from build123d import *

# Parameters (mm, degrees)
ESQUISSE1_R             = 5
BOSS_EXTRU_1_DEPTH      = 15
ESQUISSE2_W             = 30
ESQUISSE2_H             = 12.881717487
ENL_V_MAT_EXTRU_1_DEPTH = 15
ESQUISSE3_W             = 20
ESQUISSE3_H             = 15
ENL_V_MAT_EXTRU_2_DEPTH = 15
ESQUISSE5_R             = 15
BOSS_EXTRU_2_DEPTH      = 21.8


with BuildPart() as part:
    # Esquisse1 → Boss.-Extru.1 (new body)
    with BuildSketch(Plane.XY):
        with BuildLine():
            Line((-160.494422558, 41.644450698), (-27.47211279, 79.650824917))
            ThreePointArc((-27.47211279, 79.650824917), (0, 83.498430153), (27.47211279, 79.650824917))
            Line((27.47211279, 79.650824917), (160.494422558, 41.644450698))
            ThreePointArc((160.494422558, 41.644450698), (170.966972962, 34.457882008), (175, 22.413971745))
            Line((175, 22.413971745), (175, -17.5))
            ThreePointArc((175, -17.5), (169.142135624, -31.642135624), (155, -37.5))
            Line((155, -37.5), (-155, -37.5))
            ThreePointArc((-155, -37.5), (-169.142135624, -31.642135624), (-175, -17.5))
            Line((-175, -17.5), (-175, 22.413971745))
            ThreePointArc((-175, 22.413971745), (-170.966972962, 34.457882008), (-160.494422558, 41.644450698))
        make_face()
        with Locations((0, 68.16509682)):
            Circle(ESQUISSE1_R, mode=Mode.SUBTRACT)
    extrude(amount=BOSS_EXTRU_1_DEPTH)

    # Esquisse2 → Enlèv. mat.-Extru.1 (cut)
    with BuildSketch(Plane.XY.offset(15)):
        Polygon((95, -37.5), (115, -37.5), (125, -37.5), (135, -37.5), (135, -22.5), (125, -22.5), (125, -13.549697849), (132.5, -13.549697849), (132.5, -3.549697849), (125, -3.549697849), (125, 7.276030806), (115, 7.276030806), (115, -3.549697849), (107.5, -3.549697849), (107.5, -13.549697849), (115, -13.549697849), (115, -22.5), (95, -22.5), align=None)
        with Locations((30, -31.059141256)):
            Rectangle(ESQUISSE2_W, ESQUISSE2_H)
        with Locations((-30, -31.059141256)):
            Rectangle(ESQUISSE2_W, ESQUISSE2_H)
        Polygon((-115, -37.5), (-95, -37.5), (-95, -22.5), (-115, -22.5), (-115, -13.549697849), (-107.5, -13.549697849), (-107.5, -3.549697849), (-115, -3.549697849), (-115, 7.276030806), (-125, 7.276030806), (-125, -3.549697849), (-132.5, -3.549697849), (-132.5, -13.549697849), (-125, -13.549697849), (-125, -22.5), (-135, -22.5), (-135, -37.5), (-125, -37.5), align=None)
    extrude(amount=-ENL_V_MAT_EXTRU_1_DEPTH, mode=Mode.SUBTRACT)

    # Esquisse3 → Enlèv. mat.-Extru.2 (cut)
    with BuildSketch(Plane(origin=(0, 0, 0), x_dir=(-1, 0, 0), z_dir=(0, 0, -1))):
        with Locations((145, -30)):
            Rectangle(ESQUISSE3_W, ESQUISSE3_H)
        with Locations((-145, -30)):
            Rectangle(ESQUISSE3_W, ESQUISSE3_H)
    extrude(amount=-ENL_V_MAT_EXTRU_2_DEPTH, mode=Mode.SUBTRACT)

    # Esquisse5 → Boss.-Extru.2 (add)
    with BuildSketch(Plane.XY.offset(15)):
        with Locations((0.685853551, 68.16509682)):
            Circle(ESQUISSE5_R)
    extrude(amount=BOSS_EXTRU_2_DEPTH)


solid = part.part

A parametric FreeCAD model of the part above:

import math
import FreeCAD as App
import Part
import Sketcher
from FreeCAD import Vector
Q = App.Units.Quantity

doc = App.newDocument("Part")
body = doc.addObject("PartDesign::Body", "Body")

# Sketch on XY plane
sketch1 = body.newObject("Sketcher::SketchObject", "Sketch")
sketch1.AttachmentSupport = (doc.getObject("XY_Plane"), [""])
sketch1.MapMode = "FlatFace"
sketch1.addGeometry([
    Part.LineSegment(Vector(-27, 80, 0), Vector(-160, 42, 0)),  # 0
    Part.ArcOfCircle(Part.Circle(Vector(-155, 22, 0), Vector(0, 0, 1), 20), math.radians(106), math.radians(180)),  # 1
    Part.LineSegment(Vector(-175, 22, 0), Vector(-175, -18, 0)),  # 2
    Part.ArcOfCircle(Part.Circle(Vector(-155, -18, 0), Vector(0, 0, 1), 20), math.radians(180), math.radians(270)),  # 3
    Part.LineSegment(Vector(-155, -38, 0), Vector(155, -38, 0)),  # 4
    Part.ArcOfCircle(Part.Circle(Vector(155, -18, 0), Vector(0, 0, 1), 20), math.radians(-90), math.radians(0)),  # 5
    Part.LineSegment(Vector(175, -18, 0), Vector(175, 22, 0)),  # 6
    Part.ArcOfCircle(Part.Circle(Vector(155, 22, 0), Vector(0, 0, 1), 20), math.radians(0), math.radians(74)),  # 7
    Part.LineSegment(Vector(160, 42, 0), Vector(27, 80, 0)),  # 8
    Part.ArcOfCircle(Part.Circle(Vector(0, -17, 0), Vector(0, 0, 1), 100), math.radians(74), math.radians(106)),  # 9
    Part.Circle(Vector(0, 68, 0), Vector(0, 0, 1), 5),  # 10
], False)
sketch1.addConstraint([
    Sketcher.Constraint("Tangent", 0, 2, 1, 1),
    Sketcher.Constraint("Tangent", 1, 2, 2, 1),
    Sketcher.Constraint("Tangent", 2, 2, 3, 1),
    Sketcher.Constraint("Tangent", 3, 2, 4, 1),
    Sketcher.Constraint("Tangent", 4, 2, 5, 1),
    Sketcher.Constraint("Tangent", 5, 2, 6, 1),
    Sketcher.Constraint("Tangent", 6, 2, 7, 1),
    Sketcher.Constraint("Tangent", 7, 2, 8, 1),
    Sketcher.Constraint("Tangent", 8, 2, 9, 1),
    Sketcher.Constraint("Tangent", 9, 2, 0, 1),
    Sketcher.Constraint("Vertical", 2),
    Sketcher.Constraint("Horizontal", 4),
    Sketcher.Constraint("Vertical", 6),
    Sketcher.Constraint("Equal", 1, 3),
    Sketcher.Constraint("Equal", 3, 5),
    Sketcher.Constraint("Equal", 5, 7),
    Sketcher.Constraint("Symmetric", 1, 3, 7, 3, -2),
    Sketcher.Constraint("PointOnObject", 9, 3, -2),
    Sketcher.Constraint("PointOnObject", 10, 3, -2),
    Sketcher.Constraint("Diameter", 10, Q("10 mm")),
    Sketcher.Constraint("Radius", 1, Q("20 mm")),
    Sketcher.Constraint("Radius", 9, Q("100 mm")),
    Sketcher.Constraint("DistanceX", 4, 1, 4, 2, Q("310 mm")),
    Sketcher.Constraint("DistanceY", 3, 3, -1, 1, Q("17.5 mm")),
    Sketcher.Constraint("DistanceY", 2, 2, 2, 1, Q("39.913972 mm")),
    Sketcher.Constraint("Distance", 0, Q("138.34529 mm")),
    Sketcher.Constraint("DistanceY", 10, 3, 8, 2, Q("11.485728 mm")),
])
pad1 = body.newObject("PartDesign::Pad", "Pad")
pad1.Profile = sketch1
pad1.Length = 15

# Sketch on XY plane
sketch2 = body.newObject("Sketcher::SketchObject", "Sketch001")
sketch2.AttachmentSupport = (doc.getObject("XY_Plane"), [""])
sketch2.MapMode = "FlatFace"
sketch2.AttachmentOffset = App.Placement(Vector(0, 0, 15), App.Rotation())
sketch2.addGeometry([
    Part.LineSegment(Vector(95, -38, 0), Vector(135, -38, 0)),  # 0
    Part.LineSegment(Vector(135, -38, 0), Vector(135, -22, 0)),  # 1
    Part.LineSegment(Vector(135, -22, 0), Vector(125, -22, 0)),  # 2
    Part.LineSegment(Vector(125, -22, 0), Vector(125, -14, 0)),  # 3
    Part.LineSegment(Vector(125, -14, 0), Vector(132, -14, 0)),  # 4
    Part.LineSegment(Vector(132, -14, 0), Vector(132, -4, 0)),  # 5
    Part.LineSegment(Vector(132, -4, 0), Vector(125, -4, 0)),  # 6
    Part.LineSegment(Vector(125, -4, 0), Vector(125, 7, 0)),  # 7
    Part.LineSegment(Vector(125, 7, 0), Vector(115, 7, 0)),  # 8
    Part.LineSegment(Vector(115, 7, 0), Vector(115, -4, 0)),  # 9
    Part.LineSegment(Vector(115, -4, 0), Vector(108, -4, 0)),  # 10
    Part.LineSegment(Vector(108, -4, 0), Vector(108, -14, 0)),  # 11
    Part.LineSegment(Vector(108, -14, 0), Vector(115, -14, 0)),  # 12
    Part.LineSegment(Vector(115, -14, 0), Vector(115, -22, 0)),  # 13
    Part.LineSegment(Vector(115, -22, 0), Vector(95, -22, 0)),  # 14
    Part.LineSegment(Vector(95, -22, 0), Vector(95, -38, 0)),  # 15
    Part.LineSegment(Vector(15, -25, 0), Vector(15, -37, 0)),  # 16
    Part.LineSegment(Vector(15, -37, 0), Vector(45, -37, 0)),  # 17
    Part.LineSegment(Vector(45, -37, 0), Vector(45, -25, 0)),  # 18
    Part.LineSegment(Vector(45, -25, 0), Vector(15, -25, 0)),  # 19
    Part.LineSegment(Vector(-45, -25, 0), Vector(-45, -37, 0)),  # 20
    Part.LineSegment(Vector(-45, -37, 0), Vector(-15, -37, 0)),  # 21
    Part.LineSegment(Vector(-15, -37, 0), Vector(-15, -25, 0)),  # 22
    Part.LineSegment(Vector(-15, -25, 0), Vector(-45, -25, 0)),  # 23
    Part.LineSegment(Vector(-95, -38, 0), Vector(-95, -22, 0)),  # 24
    Part.LineSegment(Vector(-95, -22, 0), Vector(-115, -22, 0)),  # 25
    Part.LineSegment(Vector(-115, -22, 0), Vector(-115, -14, 0)),  # 26
    Part.LineSegment(Vector(-115, -14, 0), Vector(-108, -14, 0)),  # 27
    Part.LineSegment(Vector(-108, -14, 0), Vector(-108, -4, 0)),  # 28
    Part.LineSegment(Vector(-108, -4, 0), Vector(-115, -4, 0)),  # 29
    Part.LineSegment(Vector(-115, -4, 0), Vector(-115, 7, 0)),  # 30
    Part.LineSegment(Vector(-115, 7, 0), Vector(-125, 7, 0)),  # 31
    Part.LineSegment(Vector(-125, 7, 0), Vector(-125, -4, 0)),  # 32
    Part.LineSegment(Vector(-125, -4, 0), Vector(-132, -4, 0)),  # 33
    Part.LineSegment(Vector(-132, -4, 0), Vector(-132, -14, 0)),  # 34
    Part.LineSegment(Vector(-132, -14, 0), Vector(-125, -14, 0)),  # 35
    Part.LineSegment(Vector(-125, -14, 0), Vector(-125, -22, 0)),  # 36
    Part.LineSegment(Vector(-125, -22, 0), Vector(-135, -22, 0)),  # 37
    Part.LineSegment(Vector(-135, -22, 0), Vector(-135, -38, 0)),  # 38
    Part.LineSegment(Vector(-135, -38, 0), Vector(-95, -38, 0)),  # 39
], False)
sketch2.addConstraint([
    Sketcher.Constraint("Coincident", 0, 2, 1, 1),
    Sketcher.Constraint("Coincident", 1, 2, 2, 1),
    Sketcher.Constraint("Coincident", 2, 2, 3, 1),
    Sketcher.Constraint("Coincident", 3, 2, 4, 1),
    Sketcher.Constraint("Coincident", 4, 2, 5, 1),
    Sketcher.Constraint("Coincident", 5, 2, 6, 1),
    Sketcher.Constraint("Coincident", 6, 2, 7, 1),
    Sketcher.Constraint("Coincident", 7, 2, 8, 1),
    Sketcher.Constraint("Coincident", 8, 2, 9, 1),
    Sketcher.Constraint("Coincident", 9, 2, 10, 1),
    Sketcher.Constraint("Coincident", 10, 2, 11, 1),
    Sketcher.Constraint("Coincident", 11, 2, 12, 1),
    Sketcher.Constraint("Coincident", 12, 2, 13, 1),
    Sketcher.Constraint("Coincident", 13, 2, 14, 1),
    Sketcher.Constraint("Coincident", 14, 2, 15, 1),
    Sketcher.Constraint("Coincident", 15, 2, 0, 1),
    Sketcher.Constraint("Coincident", 16, 2, 17, 1),
    Sketcher.Constraint("Coincident", 17, 2, 18, 1),
    Sketcher.Constraint("Coincident", 18, 2, 19, 1),
    Sketcher.Constraint("Coincident", 19, 2, 16, 1),
    Sketcher.Constraint("Coincident", 20, 2, 21, 1),
    Sketcher.Constraint("Coincident", 21, 2, 22, 1),
    Sketcher.Constraint("Coincident", 22, 2, 23, 1),
    Sketcher.Constraint("Coincident", 23, 2, 20, 1),
    Sketcher.Constraint("Coincident", 24, 2, 25, 1),
    Sketcher.Constraint("Coincident", 25, 2, 26, 1),
    Sketcher.Constraint("Coincident", 26, 2, 27, 1),
    Sketcher.Constraint("Coincident", 27, 2, 28, 1),
    Sketcher.Constraint("Coincident", 28, 2, 29, 1),
    Sketcher.Constraint("Coincident", 29, 2, 30, 1),
    Sketcher.Constraint("Coincident", 30, 2, 31, 1),
    Sketcher.Constraint("Coincident", 31, 2, 32, 1),
    Sketcher.Constraint("Coincident", 32, 2, 33, 1),
    Sketcher.Constraint("Coincident", 33, 2, 34, 1),
    Sketcher.Constraint("Coincident", 34, 2, 35, 1),
    Sketcher.Constraint("Coincident", 35, 2, 36, 1),
    Sketcher.Constraint("Coincident", 36, 2, 37, 1),
    Sketcher.Constraint("Coincident", 37, 2, 38, 1),
    Sketcher.Constraint("Coincident", 38, 2, 39, 1),
    Sketcher.Constraint("Coincident", 39, 2, 24, 1),
    Sketcher.Constraint("Horizontal", 0),
    Sketcher.Constraint("Vertical", 1),
    Sketcher.Constraint("Horizontal", 2),
    Sketcher.Constraint("Vertical", 3),
    Sketcher.Constraint("Horizontal", 4),
    Sketcher.Constraint("Vertical", 5),
    Sketcher.Constraint("Horizontal", 6),
    Sketcher.Constraint("Vertical", 7),
    Sketcher.Constraint("Horizontal", 8),
    Sketcher.Constraint("Vertical", 9),
    Sketcher.Constraint("Horizontal", 10),
    Sketcher.Constraint("Vertical", 11),
    Sketcher.Constraint("Horizontal", 12),
    Sketcher.Constraint("Vertical", 13),
    Sketcher.Constraint("Horizontal", 14),
    Sketcher.Constraint("Vertical", 15),
    Sketcher.Constraint("Vertical", 16),
    Sketcher.Constraint("Horizontal", 17),
    Sketcher.Constraint("Vertical", 18),
    Sketcher.Constraint("Horizontal", 19),
    Sketcher.Constraint("Vertical", 20),
    Sketcher.Constraint("Horizontal", 21),
    Sketcher.Constraint("Vertical", 22),
    Sketcher.Constraint("Horizontal", 23),
    Sketcher.Constraint("Vertical", 24),
    Sketcher.Constraint("Horizontal", 25),
    Sketcher.Constraint("Vertical", 26),
    Sketcher.Constraint("Horizontal", 27),
    Sketcher.Constraint("Vertical", 28),
    Sketcher.Constraint("Horizontal", 29),
    Sketcher.Constraint("Vertical", 30),
    Sketcher.Constraint("Horizontal", 31),
    Sketcher.Constraint("Vertical", 32),
    Sketcher.Constraint("Horizontal", 33),
    Sketcher.Constraint("Vertical", 34),
    Sketcher.Constraint("Horizontal", 35),
    Sketcher.Constraint("Vertical", 36),
    Sketcher.Constraint("Horizontal", 37),
    Sketcher.Constraint("Vertical", 38),
    Sketcher.Constraint("Horizontal", 39),
    Sketcher.Constraint("Symmetric", 17, 2, 20, 2, -2),
    Sketcher.Constraint("Symmetric", 19, 2, 22, 2, -2),
    Sketcher.Constraint("Symmetric", 14, 2, 24, 2, -2),
    Sketcher.Constraint("Symmetric", 12, 2, 26, 2, -2),
    Sketcher.Constraint("Symmetric", 10, 2, 28, 2, -2),
    Sketcher.Constraint("Symmetric", 8, 2, 30, 2, -2),
    Sketcher.Constraint("Symmetric", 6, 2, 32, 2, -2),
    Sketcher.Constraint("Symmetric", 4, 2, 34, 2, -2),
    Sketcher.Constraint("Symmetric", 2, 2, 36, 2, -2),
    Sketcher.Constraint("Symmetric", 0, 2, 38, 2, -2),
    Sketcher.Constraint("Horizontal", 6, 2, 9, 2),
    Sketcher.Constraint("Horizontal", 4, 2, 11, 2),
    Sketcher.Constraint("Horizontal", 2, 2, 13, 2),
    Sketcher.Constraint("Horizontal", 15, 2, 16, 2),
    Sketcher.Constraint("Vertical", 3, 2, 6, 2),
    Sketcher.Constraint("Vertical", 9, 2, 12, 2),
    Sketcher.Constraint("Equal", 2, 8),
    Sketcher.Constraint("Equal", 6, 10),
    Sketcher.Constraint("Equal", 37, 5),
    Sketcher.Constraint("DistanceX", 0, 1, 0, 2, Q("40 mm")),
    Sketcher.Constraint("DistanceX", 2, 2, 2, 1, Q("10 mm")),
    Sketcher.Constraint("DistanceX", 17, 1, 17, 2, Q("30 mm")),
    Sketcher.Constraint("DistanceY", 1, 1, 1, 2, Q("15 mm")),
    Sketcher.Constraint("DistanceX", 4, 1, 4, 2, Q("7.5 mm")),
    Sketcher.Constraint("DistanceX", -1, 1, 0, 2, Q("135 mm")),
    Sketcher.Constraint("DistanceX", -1, 1, 16, 2, Q("15 mm")),
    Sketcher.Constraint("DistanceY", 0, 2, -1, 1, Q("37.5 mm")),
    Sketcher.Constraint("DistanceY", 7, 1, 7, 2, Q("10.825729 mm")),
    Sketcher.Constraint("DistanceY", 3, 1, 3, 2, Q("8.950302 mm")),
    Sketcher.Constraint("DistanceY", 16, 2, 16, 1, Q("12.881717 mm")),
])
pocket1 = body.newObject("PartDesign::Pocket", "Pocket")
pocket1.Profile = sketch2
pocket1.Length = 15

# Sketch on XY plane
sketch3 = body.newObject("Sketcher::SketchObject", "Sketch002")
sketch3.AttachmentSupport = (doc.getObject("XY_Plane"), [""])
sketch3.MapMode = "FlatFace"
sketch3.addGeometry([
    Part.LineSegment(Vector(-135, -22, 0), Vector(-135, -38, 0)),  # 0
    Part.LineSegment(Vector(-135, -38, 0), Vector(-155, -38, 0)),  # 1
    Part.LineSegment(Vector(-155, -38, 0), Vector(-155, -22, 0)),  # 2
    Part.LineSegment(Vector(-155, -22, 0), Vector(-135, -22, 0)),  # 3
    Part.LineSegment(Vector(155, -22, 0), Vector(155, -38, 0)),  # 4
    Part.LineSegment(Vector(155, -38, 0), Vector(135, -38, 0)),  # 5
    Part.LineSegment(Vector(135, -38, 0), Vector(135, -22, 0)),  # 6
    Part.LineSegment(Vector(135, -22, 0), Vector(155, -22, 0)),  # 7
], False)
sketch3.addConstraint([
    Sketcher.Constraint("Coincident", 0, 2, 1, 1),
    Sketcher.Constraint("Coincident", 1, 2, 2, 1),
    Sketcher.Constraint("Coincident", 2, 2, 3, 1),
    Sketcher.Constraint("Coincident", 3, 2, 0, 1),
    Sketcher.Constraint("Coincident", 4, 2, 5, 1),
    Sketcher.Constraint("Coincident", 5, 2, 6, 1),
    Sketcher.Constraint("Coincident", 6, 2, 7, 1),
    Sketcher.Constraint("Coincident", 7, 2, 4, 1),
    Sketcher.Constraint("Vertical", 0),
    Sketcher.Constraint("Horizontal", 1),
    Sketcher.Constraint("Vertical", 2),
    Sketcher.Constraint("Horizontal", 3),
    Sketcher.Constraint("Vertical", 4),
    Sketcher.Constraint("Horizontal", 5),
    Sketcher.Constraint("Vertical", 6),
    Sketcher.Constraint("Horizontal", 7),
    Sketcher.Constraint("Symmetric", 1, 2, 4, 2, -2),
    Sketcher.Constraint("Symmetric", 3, 2, 6, 2, -2),
    Sketcher.Constraint("DistanceX", 1, 2, 1, 1, Q("20 mm")),
    Sketcher.Constraint("DistanceY", 0, 2, 0, 1, Q("15 mm")),
    Sketcher.Constraint("DistanceX", 0, 2, -1, 1, Q("135 mm")),
    Sketcher.Constraint("DistanceY", 0, 2, -1, 1, Q("37.5 mm")),
])
pocket2 = body.newObject("PartDesign::Pocket", "Pocket001")
pocket2.Profile = sketch3
pocket2.Length = 15
pocket2.Reversed = True

# Sketch on XY plane
sketch4 = body.newObject("Sketcher::SketchObject", "Sketch003")
sketch4.AttachmentSupport = (doc.getObject("XY_Plane"), [""])
sketch4.MapMode = "FlatFace"
sketch4.AttachmentOffset = App.Placement(Vector(0, 0, 15), App.Rotation())
sketch4.addGeometry(Part.Circle(Vector(1, 68, 0), Vector(0, 0, 1), 15), False)
sketch4.addConstraint([
    Sketcher.Constraint("Diameter", 0, Q("30 mm")),
    Sketcher.Constraint("DistanceX", -1, 1, 0, 3, Q("0.685854 mm")),
    Sketcher.Constraint("DistanceY", -1, 1, 0, 3, Q("68.165097 mm")),
])
pad2 = body.newObject("PartDesign::Pad", "Pad001")
pad2.Profile = sketch4
pad2.Length = 21.8

doc.recompute()
